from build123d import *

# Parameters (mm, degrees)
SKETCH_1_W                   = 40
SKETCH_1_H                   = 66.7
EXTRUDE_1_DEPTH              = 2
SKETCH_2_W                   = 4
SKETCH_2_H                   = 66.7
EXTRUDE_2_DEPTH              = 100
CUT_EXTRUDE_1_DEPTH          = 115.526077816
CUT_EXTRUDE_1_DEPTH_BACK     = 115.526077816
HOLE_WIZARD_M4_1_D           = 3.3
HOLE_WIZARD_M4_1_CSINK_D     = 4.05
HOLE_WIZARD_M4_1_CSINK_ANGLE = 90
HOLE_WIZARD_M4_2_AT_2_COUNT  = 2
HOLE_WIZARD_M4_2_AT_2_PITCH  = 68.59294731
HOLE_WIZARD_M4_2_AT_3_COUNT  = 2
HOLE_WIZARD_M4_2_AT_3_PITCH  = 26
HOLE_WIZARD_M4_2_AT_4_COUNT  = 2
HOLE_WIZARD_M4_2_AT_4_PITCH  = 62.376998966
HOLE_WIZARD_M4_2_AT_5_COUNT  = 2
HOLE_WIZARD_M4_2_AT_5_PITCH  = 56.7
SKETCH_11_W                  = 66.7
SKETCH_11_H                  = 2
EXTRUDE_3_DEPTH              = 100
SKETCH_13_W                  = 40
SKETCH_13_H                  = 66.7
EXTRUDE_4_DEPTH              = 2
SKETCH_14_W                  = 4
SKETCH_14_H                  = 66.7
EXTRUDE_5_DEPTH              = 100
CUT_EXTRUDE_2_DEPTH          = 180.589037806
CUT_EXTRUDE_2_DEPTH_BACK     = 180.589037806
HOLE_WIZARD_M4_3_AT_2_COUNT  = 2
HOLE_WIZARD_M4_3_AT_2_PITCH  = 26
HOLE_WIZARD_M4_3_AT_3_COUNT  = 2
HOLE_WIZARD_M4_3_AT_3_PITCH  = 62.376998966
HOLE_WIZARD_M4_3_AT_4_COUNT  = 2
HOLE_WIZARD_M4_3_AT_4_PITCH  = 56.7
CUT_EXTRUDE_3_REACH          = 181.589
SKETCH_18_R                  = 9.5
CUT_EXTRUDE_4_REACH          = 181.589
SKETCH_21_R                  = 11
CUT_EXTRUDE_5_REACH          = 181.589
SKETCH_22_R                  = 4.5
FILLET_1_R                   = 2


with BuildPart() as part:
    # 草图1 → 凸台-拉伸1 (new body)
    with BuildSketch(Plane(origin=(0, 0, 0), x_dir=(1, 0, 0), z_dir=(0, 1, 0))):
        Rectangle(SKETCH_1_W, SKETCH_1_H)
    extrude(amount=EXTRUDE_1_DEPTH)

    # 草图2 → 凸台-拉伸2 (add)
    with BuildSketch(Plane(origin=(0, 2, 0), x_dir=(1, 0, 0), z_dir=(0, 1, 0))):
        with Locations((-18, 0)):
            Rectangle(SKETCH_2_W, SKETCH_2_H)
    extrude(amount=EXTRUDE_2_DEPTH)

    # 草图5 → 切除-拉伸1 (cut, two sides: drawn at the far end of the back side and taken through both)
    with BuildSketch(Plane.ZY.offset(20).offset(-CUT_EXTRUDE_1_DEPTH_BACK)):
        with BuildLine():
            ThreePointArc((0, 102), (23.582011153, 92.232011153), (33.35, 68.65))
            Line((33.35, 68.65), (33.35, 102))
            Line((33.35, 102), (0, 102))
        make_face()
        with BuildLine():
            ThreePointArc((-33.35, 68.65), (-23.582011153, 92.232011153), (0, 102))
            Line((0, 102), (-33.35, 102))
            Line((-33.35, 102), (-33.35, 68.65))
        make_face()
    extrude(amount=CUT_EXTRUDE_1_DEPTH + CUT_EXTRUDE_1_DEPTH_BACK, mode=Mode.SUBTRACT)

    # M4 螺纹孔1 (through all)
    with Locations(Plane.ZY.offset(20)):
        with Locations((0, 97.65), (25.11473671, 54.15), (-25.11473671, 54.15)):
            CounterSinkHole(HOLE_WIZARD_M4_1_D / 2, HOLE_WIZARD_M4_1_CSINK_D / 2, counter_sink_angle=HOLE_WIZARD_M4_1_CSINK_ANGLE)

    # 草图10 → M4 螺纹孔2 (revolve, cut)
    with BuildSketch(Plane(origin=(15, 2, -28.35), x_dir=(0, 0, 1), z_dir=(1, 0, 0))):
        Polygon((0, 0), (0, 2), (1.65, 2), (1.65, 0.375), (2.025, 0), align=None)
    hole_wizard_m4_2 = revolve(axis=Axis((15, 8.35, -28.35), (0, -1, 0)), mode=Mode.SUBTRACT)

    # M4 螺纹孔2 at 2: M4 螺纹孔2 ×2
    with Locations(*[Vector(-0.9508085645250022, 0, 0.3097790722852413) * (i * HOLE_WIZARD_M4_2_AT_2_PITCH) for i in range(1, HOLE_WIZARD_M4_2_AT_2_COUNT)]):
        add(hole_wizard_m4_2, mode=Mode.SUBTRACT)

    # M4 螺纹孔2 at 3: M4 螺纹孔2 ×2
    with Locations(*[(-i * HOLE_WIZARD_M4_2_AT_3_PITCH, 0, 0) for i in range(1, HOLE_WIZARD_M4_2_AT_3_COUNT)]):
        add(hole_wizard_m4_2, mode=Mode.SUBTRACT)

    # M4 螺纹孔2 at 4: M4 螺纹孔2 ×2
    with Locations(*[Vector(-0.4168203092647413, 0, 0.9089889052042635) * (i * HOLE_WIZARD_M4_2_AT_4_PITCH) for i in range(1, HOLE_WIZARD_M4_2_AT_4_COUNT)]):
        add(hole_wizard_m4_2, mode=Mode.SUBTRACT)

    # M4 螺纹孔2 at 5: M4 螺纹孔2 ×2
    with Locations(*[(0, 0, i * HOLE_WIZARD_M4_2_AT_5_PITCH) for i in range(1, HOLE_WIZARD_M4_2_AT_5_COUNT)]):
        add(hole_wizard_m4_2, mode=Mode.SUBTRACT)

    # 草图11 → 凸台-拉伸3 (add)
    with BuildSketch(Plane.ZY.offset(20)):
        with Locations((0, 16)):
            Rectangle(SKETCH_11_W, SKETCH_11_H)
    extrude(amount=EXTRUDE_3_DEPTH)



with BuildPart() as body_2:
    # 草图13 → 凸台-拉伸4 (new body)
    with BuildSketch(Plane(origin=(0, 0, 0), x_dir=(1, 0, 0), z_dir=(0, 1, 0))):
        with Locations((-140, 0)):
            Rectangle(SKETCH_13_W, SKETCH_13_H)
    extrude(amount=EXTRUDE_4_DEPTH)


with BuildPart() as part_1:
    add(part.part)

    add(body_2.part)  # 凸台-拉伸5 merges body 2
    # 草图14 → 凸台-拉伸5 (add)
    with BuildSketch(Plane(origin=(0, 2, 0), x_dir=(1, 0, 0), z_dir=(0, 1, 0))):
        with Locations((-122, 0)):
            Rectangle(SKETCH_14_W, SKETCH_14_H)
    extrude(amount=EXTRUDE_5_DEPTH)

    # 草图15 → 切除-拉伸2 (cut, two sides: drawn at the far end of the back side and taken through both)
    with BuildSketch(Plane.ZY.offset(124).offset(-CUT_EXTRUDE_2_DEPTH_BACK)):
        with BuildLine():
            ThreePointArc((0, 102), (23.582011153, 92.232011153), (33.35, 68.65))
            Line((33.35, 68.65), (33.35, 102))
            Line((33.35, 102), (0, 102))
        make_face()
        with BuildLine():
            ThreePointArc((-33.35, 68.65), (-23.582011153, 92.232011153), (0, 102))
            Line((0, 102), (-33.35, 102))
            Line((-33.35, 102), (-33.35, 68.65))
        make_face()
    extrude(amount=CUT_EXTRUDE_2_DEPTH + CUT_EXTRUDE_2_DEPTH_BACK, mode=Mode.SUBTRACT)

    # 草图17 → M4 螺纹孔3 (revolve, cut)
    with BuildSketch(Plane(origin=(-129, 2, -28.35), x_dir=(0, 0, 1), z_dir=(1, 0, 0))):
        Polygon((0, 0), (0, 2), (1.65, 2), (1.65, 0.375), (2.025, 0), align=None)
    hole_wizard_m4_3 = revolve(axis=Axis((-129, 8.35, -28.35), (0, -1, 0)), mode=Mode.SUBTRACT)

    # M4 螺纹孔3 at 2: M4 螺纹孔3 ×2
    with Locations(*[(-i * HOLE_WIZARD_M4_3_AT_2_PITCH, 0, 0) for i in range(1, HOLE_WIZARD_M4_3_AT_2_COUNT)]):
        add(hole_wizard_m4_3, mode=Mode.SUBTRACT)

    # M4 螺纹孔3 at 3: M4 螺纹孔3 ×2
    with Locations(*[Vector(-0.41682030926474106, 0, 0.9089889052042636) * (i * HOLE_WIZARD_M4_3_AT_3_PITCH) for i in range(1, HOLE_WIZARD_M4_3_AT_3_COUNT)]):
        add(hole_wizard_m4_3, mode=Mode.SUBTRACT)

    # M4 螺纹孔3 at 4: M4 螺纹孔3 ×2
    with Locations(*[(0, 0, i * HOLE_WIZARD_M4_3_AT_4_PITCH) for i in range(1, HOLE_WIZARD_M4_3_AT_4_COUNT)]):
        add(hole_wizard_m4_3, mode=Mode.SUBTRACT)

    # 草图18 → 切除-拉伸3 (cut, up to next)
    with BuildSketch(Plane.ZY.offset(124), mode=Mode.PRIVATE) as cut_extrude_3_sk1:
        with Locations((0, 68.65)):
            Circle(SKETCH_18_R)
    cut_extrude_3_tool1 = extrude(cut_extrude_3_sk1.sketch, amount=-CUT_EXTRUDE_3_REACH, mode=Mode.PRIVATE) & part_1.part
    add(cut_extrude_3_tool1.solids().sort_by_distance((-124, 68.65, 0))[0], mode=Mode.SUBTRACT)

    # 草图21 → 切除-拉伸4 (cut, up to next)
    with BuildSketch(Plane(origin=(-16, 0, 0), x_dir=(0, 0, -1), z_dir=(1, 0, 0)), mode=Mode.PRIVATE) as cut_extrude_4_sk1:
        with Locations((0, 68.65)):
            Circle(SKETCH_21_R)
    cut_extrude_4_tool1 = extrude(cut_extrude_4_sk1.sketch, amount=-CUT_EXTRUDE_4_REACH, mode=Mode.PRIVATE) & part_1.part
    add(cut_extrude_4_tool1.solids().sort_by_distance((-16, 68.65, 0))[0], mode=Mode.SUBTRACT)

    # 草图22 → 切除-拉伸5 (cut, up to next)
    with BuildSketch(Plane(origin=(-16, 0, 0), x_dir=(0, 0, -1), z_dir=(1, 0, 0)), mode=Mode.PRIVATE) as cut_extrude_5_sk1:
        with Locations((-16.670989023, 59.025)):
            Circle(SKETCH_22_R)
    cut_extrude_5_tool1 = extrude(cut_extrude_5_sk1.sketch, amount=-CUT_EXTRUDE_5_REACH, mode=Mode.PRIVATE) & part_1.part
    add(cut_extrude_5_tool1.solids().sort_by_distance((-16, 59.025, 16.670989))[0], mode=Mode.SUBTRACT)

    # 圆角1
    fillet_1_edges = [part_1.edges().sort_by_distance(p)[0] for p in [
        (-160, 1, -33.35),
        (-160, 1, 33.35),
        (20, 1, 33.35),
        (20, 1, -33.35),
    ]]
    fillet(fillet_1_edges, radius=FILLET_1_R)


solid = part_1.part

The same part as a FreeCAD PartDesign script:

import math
import FreeCAD as App
import Part
import Sketcher

V = App.Vector
Q = App.Units.Quantity


def edges_at(feature, points):
    """Names of the edges that pass closest to the given points."""
    edges = feature.Shape.Edges
    near = lambda p: min(range(len(edges)), key=lambda i: edges[i].distToShape(Part.Vertex(*p))[0])
    return sorted({f"Edge{near(p) + 1}" for p in points})

doc = App.newDocument("Part")
body = doc.addObject("PartDesign::Body", "Body")

# Sketch on XZ plane
sketch1 = doc.addObject("Sketcher::SketchObject", "Sketch")
body.addObject(sketch1)
sketch1.AttachmentSupport = (doc.XZ_Plane, [""])
sketch1.MapMode = "FlatFace"
sketch1.addGeometry([
    Part.LineSegment(V(-20, -33, 0), V(-20, 33, 0)),
    Part.LineSegment(V(-20, 33, 0), V(20, 33, 0)),
    Part.LineSegment(V(20, 33, 0), V(20, -33, 0)),
    Part.LineSegment(V(20, -33, 0), V(-20, -33, 0)),
], False)
sketch1.addConstraint([
    Sketcher.Constraint("Coincident", 0, 2, 1, 1),
    Sketcher.Constraint("Coincident", 1, 2, 2, 1),
    Sketcher.Constraint("Coincident", 2, 2, 3, 1),
    Sketcher.Constraint("Coincident", 3, 2, 0, 1),
    Sketcher.Constraint("Vertical", 0),
    Sketcher.Constraint("Horizontal", 1),
    Sketcher.Constraint("Vertical", 2),
    Sketcher.Constraint("Horizontal", 3),
    Sketcher.Constraint("Symmetric", 0, 2, 2, 2, -1, 1),
    Sketcher.Constraint("DistanceX", 1, 1, 1, 2, 40.0),
    Sketcher.Constraint("DistanceY", 0, 1, 0, 2, 66.7),
])
pad1 = doc.addObject("PartDesign::Pad", "Pad")
body.addObject(pad1)
pad1.Profile = sketch1
pad1.Length = 2
pad1.Reversed = True

# Sketch on XZ plane
sketch2 = doc.addObject("Sketcher::SketchObject", "Sketch001")
body.addObject(sketch2)
sketch2.AttachmentSupport = (doc.XZ_Plane, [""])
sketch2.MapMode = "FlatFace"
sketch2.AttachmentOffset = App.Placement(V(0, 0, -2), App.Rotation())
sketch2.addGeometry([
    Part.LineSegment(V(-20, -33.4, 0), V(-20, 33.4, 0)),
    Part.LineSegment(V(-20, 33.4, 0), V(-16, 33.4, 0)),
    Part.LineSegment(V(-16, 33.4, 0), V(-16, -33.4, 0)),
    Part.LineSegment(V(-16, -33.4, 0), V(-20, -33.4, 0)),
], False)
sketch2.addConstraint([
    Sketcher.Constraint("Coincident", 0, 2, 1, 1),
    Sketcher.Constraint("Coincident", 1, 2, 2, 1),
    Sketcher.Constraint("Coincident", 2, 2, 3, 1),
    Sketcher.Constraint("Coincident", 3, 2, 0, 1),
    Sketcher.Constraint("Vertical", 0),
    Sketcher.Constraint("Horizontal", 1),
    Sketcher.Constraint("Vertical", 2),
    Sketcher.Constraint("Horizontal", 3),
    Sketcher.Constraint("DistanceX", 1, 1, 1, 2, 4.0),
    Sketcher.Constraint("DistanceY", 0, 1, 0, 2, 66.7),
    Sketcher.Constraint("DistanceX", 0, 2, -1, 1, 20.0),
    Sketcher.Constraint("DistanceY", -1, 1, 0, 2, 33.35),
])
pad2 = doc.addObject("PartDesign::Pad", "Pad001")
body.addObject(pad2)
pad2.Profile = sketch2
pad2.Length = 100
pad2.Reversed = True

# Sketch on YZ plane
sketch3 = doc.addObject("Sketcher::SketchObject", "Sketch002")
body.addObject(sketch3)
sketch3.AttachmentSupport = (doc.YZ_Plane, [""])
sketch3.MapMode = "FlatFace"
sketch3.AttachmentOffset = App.Placement(V(0, 0, -20), App.Rotation())
sketch3.addGeometry([
    Part.ArcOfCircle(Part.Circle(V(69, 0, 0), V(0, 0, 1), 33), math.radians(0), math.radians(90)),  # 0
    Part.LineSegment(V(69, 33, 0), V(102, 33, 0)),  # 1
    Part.LineSegment(V(102, 33, 0), V(102, 0, 0)),  # 2
    Part.ArcOfCircle(Part.Circle(V(69, 0, 0), V(0, 0, 1), 33), math.radians(-90), math.radians(0)),  # 3
    Part.LineSegment(V(102, 0, 0), V(102, -33, 0)),  # 4
    Part.LineSegment(V(102, -33, 0), V(69, -33, 0)),  # 5
], False)
sketch3.addConstraint([
    Sketcher.Constraint("Tangent", 0, 2, 1, 1),
    Sketcher.Constraint("Coincident", 1, 2, 2, 1),
    Sketcher.Constraint("Tangent", 2, 2, 0, 1),
    Sketcher.Constraint("Tangent", 3, 2, 4, 1),
    Sketcher.Constraint("Coincident", 4, 2, 5, 1),
    Sketcher.Constraint("Tangent", 5, 2, 3, 1),
    Sketcher.Constraint("Horizontal", 1),
    Sketcher.Constraint("Vertical", 2),
    Sketcher.Constraint("Vertical", 4),
    Sketcher.Constraint("Horizontal", 5),
    Sketcher.Constraint("Coincident", 3, 3, 0, 3),
    Sketcher.Constraint("Equal", 0, 3),
    Sketcher.Constraint("PointOnObject", 0, 3, -1),
    Sketcher.Constraint("Radius", 0, 33.35),
    Sketcher.Constraint("DistanceX", -1, 1, 1, 2, 102.0),
])
pocket1 = doc.addObject("PartDesign::Pocket", "Pocket")
body.addObject(pocket1)
pocket1.Profile = sketch3
pocket1.Type = "ThroughAll"
pocket1.Midplane = True

# Sketch on YZ plane
sketch4 = doc.addObject("Sketcher::SketchObject", "Sketch003")
body.addObject(sketch4)
sketch4.AttachmentSupport = (doc.YZ_Plane, [""])
sketch4.MapMode = "FlatFace"
sketch4.AttachmentOffset = App.Placement(V(0, 0, -20), App.Rotation())
sketch4.addGeometry([
    Part.Circle(V(97.7, 0, 0), V(0, 0, 1), 1.6),
    Part.Circle(V(54.1, 25.1, 0), V(0, 0, 1), 1.6),
    Part.Circle(V(54.1, -25.1, 0), V(0, 0, 1), 1.6),
], False)
sketch4.addConstraint([
    Sketcher.Constraint("Equal", 0, 1),
    Sketcher.Constraint("Equal", 1, 2),
    Sketcher.Constraint("Symmetric", 1, 3, 2, 3, -1),
    Sketcher.Constraint("PointOnObject", 0, 3, -1),
    Sketcher.Constraint("Diameter", 0, 3.3),
    Sketcher.Constraint("DistanceX", 1, 3, 0, 3, 43.5),
    Sketcher.Constraint("DistanceX", -1, 1, 0, 3, 97.65),
    Sketcher.Constraint("DistanceY", -1, 1, 1, 3, 25.114737),
])
doc.recompute()
hole = doc.addObject("PartDesign::Hole", "Hole")
body.addObject(hole)
hole.Profile = sketch4
hole.ThreadType = "None"
hole.Diameter = 3.3
hole.DepthType = "ThroughAll"
hole.HoleCutType = "Countersink"
hole.HoleCutDiameter = 4.05
hole.HoleCutCountersinkAngle = 90
hole.Reversed = True

# Sketch on YZ plane
sketch5 = doc.addObject("Sketcher::SketchObject", "Sketch004")
body.addObject(sketch5)
sketch5.AttachmentSupport = (doc.YZ_Plane, [""])
sketch5.MapMode = "FlatFace"
sketch5.AttachmentOffset = App.Placement(V(0, 0, 15), App.Rotation())
sketch5.addGeometry([
    Part.LineSegment(V(0, -28.4, 0), V(2, -28.4, 0)),  # 0
    Part.LineSegment(V(2, -28.4, 0), V(2, -26.3, 0)),  # 1
    Part.LineSegment(V(2, -26.3, 0), V(1.6, -26.7, 0)),  # 2
    Part.LineSegment(V(1.6, -26.7, 0), V(0, -26.7, 0)),  # 3
    Part.LineSegment(V(0, -26.7, 0), V(0, -28.4, 0)),  # 4
], False)
sketch5.addGeometry(Part.LineSegment(V(2, -28.4, 0), V(0, -28.4, 0)), True)  # axis
sketch5.addConstraint([
    Sketcher.Constraint("Coincident", 0, 2, 1, 1),
    Sketcher.Constraint("Coincident", 1, 2, 2, 1),
    Sketcher.Constraint("Coincident", 2, 2, 3, 1),
    Sketcher.Constraint("Coincident", 3, 2, 4, 1),
    Sketcher.Constraint("Coincident", 4, 2, 0, 1),
    Sketcher.Constraint("Horizontal", 0),
    Sketcher.Constraint("Vertical", 1),
    Sketcher.Constraint("Horizontal", 3),
    Sketcher.Constraint("Vertical", 4),
    Sketcher.Constraint("Horizontal", 5),
    Sketcher.Constraint("Coincident", 5, 1, 0, 2),
    Sketcher.Constraint("PointOnObject", 3, 2, -2),
    Sketcher.Constraint("PointOnObject", 5, 2, -2),
    Sketcher.Constraint("DistanceX", 0, 1, 0, 2, 2.0),
    Sketcher.Constraint("Angle", 2, Q("-135 deg")),
    Sketcher.Constraint("DistanceY", 4, 2, 4, 1, 1.65),
    Sketcher.Constraint("DistanceY", 2, 2, -1, 1, 26.7),
    Sketcher.Constraint("DistanceX", 3, 2, 3, 1, 1.625),
])
groove = doc.addObject("PartDesign::Groove", "Groove")
body.addObject(groove)
groove.Profile = sketch5
groove.ReferenceAxis = (sketch5, ["Axis0"])
groove.Angle = 360
doc.recompute()

datumline = doc.addObject("PartDesign::Line", "DatumLine")
body.addObject(datumline)
datumline.Placement = App.Placement(V(0, 0, 0), App.Rotation(V(0, 0, 1), V(-0.950808565, 0, 0.309779072)))
linearpattern = doc.addObject("PartDesign::LinearPattern", "LinearPattern")
body.addObject(linearpattern)
linearpattern.Originals = [groove]
linearpattern.Direction = (datumline, [""])
linearpattern.Mode = "offset"
linearpattern.Offset = 68.592947
linearpattern.Occurrences = 2
body.Tip = linearpattern
doc.recompute()

linearpattern2 = doc.addObject("PartDesign::LinearPattern", "LinearPattern001")
body.addObject(linearpattern2)
linearpattern2.Originals = [groove]
linearpattern2.Direction = (doc.X_Axis, [""])
linearpattern2.Mode = "offset"
linearpattern2.Offset = 26
linearpattern2.Occurrences = 2
linearpattern2.Reversed = True
body.Tip = linearpattern2
doc.recompute()

datumline2 = doc.addObject("PartDesign::Line", "DatumLine001")
body.addObject(datumline2)
datumline2.Placement = App.Placement(V(0, 0, 0), App.Rotation(V(0, 0, 1), V(-0.416820309, 0, 0.908988905)))
linearpattern3 = doc.addObject("PartDesign::LinearPattern", "LinearPattern002")
body.addObject(linearpattern3)
linearpattern3.Originals = [groove]
linearpattern3.Direction = (datumline2, [""])
linearpattern3.Mode = "offset"
linearpattern3.Offset = 62.376999
linearpattern3.Occurrences = 2
body.Tip = linearpattern3
doc.recompute()

linearpattern4 = doc.addObject("PartDesign::LinearPattern", "LinearPattern003")
body.addObject(linearpattern4)
linearpattern4.Originals = [groove]
linearpattern4.Direction = (doc.Z_Axis, [""])
linearpattern4.Mode = "offset"
linearpattern4.Offset = 56.7
linearpattern4.Occurrences = 2
body.Tip = linearpattern4

# Sketch on YZ plane
sketch6 = doc.addObject("Sketcher::SketchObject", "Sketch005")
body.addObject(sketch6)
sketch6.AttachmentSupport = (doc.YZ_Plane, [""])
sketch6.MapMode = "FlatFace"
sketch6.AttachmentOffset = App.Placement(V(0, 0, -20), App.Rotation())
sketch6.addGeometry([
    Part.LineSegment(V(17, -33.4, 0), V(15, -33.4, 0)),
    Part.LineSegment(V(15, -33.4, 0), V(15, 33.4, 0)),
    Part.LineSegment(V(15, 33.4, 0), V(17, 33.4, 0)),
    Part.LineSegment(V(17, 33.4, 0), V(17, -33.4, 0)),
], False)
sketch6.addConstraint([
    Sketcher.Constraint("Coincident", 0, 2, 1, 1),
    Sketcher.Constraint("Coincident", 1, 2, 2, 1),
    Sketcher.Constraint("Coincident", 2, 2, 3, 1),
    Sketcher.Constraint("Coincident", 3, 2, 0, 1),
    Sketcher.Constraint("Horizontal", 0),
    Sketcher.Constraint("Vertical", 1),
    Sketcher.Constraint("Horizontal", 2),
    Sketcher.Constraint("Vertical", 3),
    Sketcher.Constraint("DistanceX", 0, 2, 0, 1, 2.0),
    Sketcher.Constraint("DistanceY", 1, 1, 1, 2, 66.7),
    Sketcher.Constraint("DistanceX", -1, 1, 0, 2, 15.0),
    Sketcher.Constraint("DistanceY", 0, 2, -1, 1, 33.35),
])
pad3 = doc.addObject("PartDesign::Pad", "Pad002")
body.addObject(pad3)
pad3.Profile = sketch6
pad3.Length = 100
pad3.Reversed = True
body2 = doc.addObject("PartDesign::Body", "Body001")

# Sketch on XZ plane
sketch7 = doc.addObject("Sketcher::SketchObject", "Sketch006")
body2.addObject(sketch7)
sketch7.AttachmentSupport = (doc.getObject("XZ_Plane001"), [""])
sketch7.MapMode = "FlatFace"
sketch7.addGeometry([
    Part.LineSegment(V(-160, -33, 0), V(-160, 33, 0)),
    Part.LineSegment(V(-160, 33, 0), V(-120, 33, 0)),
    Part.LineSegment(V(-120, 33, 0), V(-120, -33, 0)),
    Part.LineSegment(V(-120, -33, 0), V(-160, -33, 0)),
], False)
sketch7.addConstraint([
    Sketcher.Constraint("Coincident", 0, 2, 1, 1),
    Sketcher.Constraint("Coincident", 1, 2, 2, 1),
    Sketcher.Constraint("Coincident", 2, 2, 3, 1),
    Sketcher.Constraint("Coincident", 3, 2, 0, 1),
    Sketcher.Constraint("Vertical", 0),
    Sketcher.Constraint("Horizontal", 1),
    Sketcher.Constraint("Vertical", 2),
    Sketcher.Constraint("Horizontal", 3),
    Sketcher.Constraint("DistanceX", 1, 1, 1, 2, 40.0),
    Sketcher.Constraint("DistanceY", 0, 1, 0, 2, 66.7),
    Sketcher.Constraint("DistanceX", 0, 2, -1, 1, 160.0),
    Sketcher.Constraint("DistanceY", -1, 1, 0, 2, 33.35),
])
pad4 = doc.addObject("PartDesign::Pad", "Pad003")
body2.addObject(pad4)
pad4.Profile = sketch7
pad4.Length = 2
pad4.Reversed = True
body.AllowCompound = True
doc.recompute()

boolean = doc.addObject("PartDesign::Boolean", "Boolean")
body.addObject(boolean)
boolean.Type = "Fuse"
boolean.addObjects([body2])

# Sketch on XZ plane
sketch8 = doc.addObject("Sketcher::SketchObject", "Sketch007")
body.addObject(sketch8)
sketch8.AttachmentSupport = (doc.XZ_Plane, [""])
sketch8.MapMode = "FlatFace"
sketch8.AttachmentOffset = App.Placement(V(0, 0, -2), App.Rotation())
sketch8.addGeometry([
    Part.LineSegment(V(-124, -33.4, 0), V(-124, 33.4, 0)),
    Part.LineSegment(V(-124, 33.4, 0), V(-120, 33.4, 0)),
    Part.LineSegment(V(-120, 33.4, 0), V(-120, -33.4, 0)),
    Part.LineSegment(V(-120, -33.4, 0), V(-124, -33.4, 0)),
], False)
sketch8.addConstraint([
    Sketcher.Constraint("Coincident", 0, 2, 1, 1),
    Sketcher.Constraint("Coincident", 1, 2, 2, 1),
    Sketcher.Constraint("Coincident", 2, 2, 3, 1),
    Sketcher.Constraint("Coincident", 3, 2, 0, 1),
    Sketcher.Constraint("Vertical", 0),
    Sketcher.Constraint("Horizontal", 1),
    Sketcher.Constraint("Vertical", 2),
    Sketcher.Constraint("Horizontal", 3),
    Sketcher.Constraint("DistanceX", 1, 1, 1, 2, 4.0),
    Sketcher.Constraint("DistanceY", 0, 1, 0, 2, 66.7),
    Sketcher.Constraint("DistanceX", 0, 2, -1, 1, 124.0),
    Sketcher.Constraint("DistanceY", -1, 1, 0, 2, 33.35),
])
pad5 = doc.addObject("PartDesign::Pad", "Pad004")
body.addObject(pad5)
pad5.Profile = sketch8
pad5.Length = 100
pad5.Reversed = True

# Sketch on YZ plane
sketch9 = doc.addObject("Sketcher::SketchObject", "Sketch008")
body.addObject(sketch9)
sketch9.AttachmentSupport = (doc.YZ_Plane, [""])
sketch9.MapMode = "FlatFace"
sketch9.AttachmentOffset = App.Placement(V(0, 0, -124), App.Rotation())
sketch9.addGeometry([
    Part.ArcOfCircle(Part.Circle(V(69, 0, 0), V(0, 0, 1), 33), math.radians(0), math.radians(90)),  # 0
    Part.LineSegment(V(69, 33, 0), V(102, 33, 0)),  # 1
    Part.LineSegment(V(102, 33, 0), V(102, 0, 0)),  # 2
    Part.ArcOfCircle(Part.Circle(V(69, 0, 0), V(0, 0, 1), 33), math.radians(-90), math.radians(0)),  # 3
    Part.LineSegment(V(102, 0, 0), V(102, -33, 0)),  # 4
    Part.LineSegment(V(102, -33, 0), V(69, -33, 0)),  # 5
], False)
sketch9.addConstraint([
    Sketcher.Constraint("Tangent", 0, 2, 1, 1),
    Sketcher.Constraint("Coincident", 1, 2, 2, 1),
    Sketcher.Constraint("Tangent", 2, 2, 0, 1),
    Sketcher.Constraint("Tangent", 3, 2, 4, 1),
    Sketcher.Constraint("Coincident", 4, 2, 5, 1),
    Sketcher.Constraint("Tangent", 5, 2, 3, 1),
    Sketcher.Constraint("Horizontal", 1),
    Sketcher.Constraint("Vertical", 2),
    Sketcher.Constraint("Vertical", 4),
    Sketcher.Constraint("Horizontal", 5),
    Sketcher.Constraint("Coincident", 3, 3, 0, 3),
    Sketcher.Constraint("Equal", 0, 3),
    Sketcher.Constraint("PointOnObject", 0, 3, -1),
    Sketcher.Constraint("Radius", 0, 33.35),
    Sketcher.Constraint("DistanceX", -1, 1, 1, 2, 102.0),
])
pocket2 = doc.addObject("PartDesign::Pocket", "Pocket001")
body.addObject(pocket2)
pocket2.Profile = sketch9
pocket2.Type = "ThroughAll"
pocket2.Midplane = True

# Sketch on YZ plane
sketch10 = doc.addObject("Sketcher::SketchObject", "Sketch009")
body.addObject(sketch10)
sketch10.AttachmentSupport = (doc.YZ_Plane, [""])
sketch10.MapMode = "FlatFace"
sketch10.AttachmentOffset = App.Placement(V(0, 0, -129), App.Rotation())
sketch10.addGeometry([
    Part.LineSegment(V(0, -28.4, 0), V(2, -28.4, 0)),  # 0
    Part.LineSegment(V(2, -28.4, 0), V(2, -26.3, 0)),  # 1
    Part.LineSegment(V(2, -26.3, 0), V(1.6, -26.7, 0)),  # 2
    Part.LineSegment(V(1.6, -26.7, 0), V(0, -26.7, 0)),  # 3
    Part.LineSegment(V(0, -26.7, 0), V(0, -28.4, 0)),  # 4
], False)
sketch10.addGeometry(Part.LineSegment(V(2, -28.4, 0), V(0, -28.4, 0)), True)  # axis
sketch10.addConstraint([
    Sketcher.Constraint("Coincident", 0, 2, 1, 1),
    Sketcher.Constraint("Coincident", 1, 2, 2, 1),
    Sketcher.Constraint("Coincident", 2, 2, 3, 1),
    Sketcher.Constraint("Coincident", 3, 2, 4, 1),
    Sketcher.Constraint("Coincident", 4, 2, 0, 1),
    Sketcher.Constraint("Horizontal", 0),
    Sketcher.Constraint("Vertical", 1),
    Sketcher.Constraint("Horizontal", 3),
    Sketcher.Constraint("Vertical", 4),
    Sketcher.Constraint("Horizontal", 5),
    Sketcher.Constraint("Coincident", 5, 1, 0, 2),
    Sketcher.Constraint("PointOnObject", 3, 2, -2),
    Sketcher.Constraint("PointOnObject", 5, 2, -2),
    Sketcher.Constraint("DistanceX", 0, 1, 0, 2, 2.0),
    Sketcher.Constraint("Angle", 2, Q("-135 deg")),
    Sketcher.Constraint("DistanceY", 4, 2, 4, 1, 1.65),
    Sketcher.Constraint("DistanceY", 2, 2, -1, 1, 26.7),
    Sketcher.Constraint("DistanceX", 3, 2, 3, 1, 1.625),
])
groove2 = doc.addObject("PartDesign::Groove", "Groove001")
body.addObject(groove2)
groove2.Profile = sketch10
groove2.ReferenceAxis = (sketch10, ["Axis0"])
groove2.Angle = 360
doc.recompute()

linearpattern5 = doc.addObject("PartDesign::LinearPattern", "LinearPattern004")
body.addObject(linearpattern5)
linearpattern5.Originals = [groove2]
linearpattern5.Direction = (doc.X_Axis, [""])
linearpattern5.Mode = "offset"
linearpattern5.Offset = 26
linearpattern5.Occurrences = 2
linearpattern5.Reversed = True
body.Tip = linearpattern5
doc.recompute()

datumline3 = doc.addObject("PartDesign::Line", "DatumLine002")
body.addObject(datumline3)
datumline3.Placement = App.Placement(V(0, 0, 0), App.Rotation(V(0, 0, 1), V(-0.416820309, 0, 0.908988905)))
linearpattern6 = doc.addObject("PartDesign::LinearPattern", "LinearPattern005")
body.addObject(linearpattern6)
linearpattern6.Originals = [groove2]
linearpattern6.Direction = (datumline3, [""])
linearpattern6.Mode = "offset"
linearpattern6.Offset = 62.376999
linearpattern6.Occurrences = 2
body.Tip = linearpattern6
doc.recompute()

linearpattern7 = doc.addObject("PartDesign::LinearPattern", "LinearPattern006")
body.addObject(linearpattern7)
linearpattern7.Originals = [groove2]
linearpattern7.Direction = (doc.Z_Axis, [""])
linearpattern7.Mode = "offset"
linearpattern7.Offset = 56.7
linearpattern7.Occurrences = 2
body.Tip = linearpattern7

# Sketch on YZ plane
sketch11 = doc.addObject("Sketcher::SketchObject", "Sketch010")
body.addObject(sketch11)
sketch11.AttachmentSupport = (doc.YZ_Plane, [""])
sketch11.MapMode = "FlatFace"
sketch11.AttachmentOffset = App.Placement(V(0, 0, -124), App.Rotation())
sketch11.addGeometry(Part.Circle(V(69, 0, 0), V(0, 0, 1), 10), False)
sketch11.addConstraint([
    Sketcher.Constraint("PointOnObject", 0, 3, -1),
    Sketcher.Constraint("Diameter", 0, 19.0),
    Sketcher.Constraint("DistanceX", -1, 1, 0, 3, 68.65),
])
pocket3 = doc.addObject("PartDesign::Pocket", "Pocket002")
body.addObject(pocket3)
pocket3.Profile = sketch11
pocket3.Type = "UpToFirst"
pocket3.Reversed = True

# Sketch on YZ plane
sketch12 = doc.addObject("Sketcher::SketchObject", "Sketch011")
body.addObject(sketch12)
sketch12.AttachmentSupport = (doc.YZ_Plane, [""])
sketch12.MapMode = "FlatFace"
sketch12.AttachmentOffset = App.Placement(V(0, 0, -16), App.Rotation())
sketch12.addGeometry(Part.Circle(V(69, 0, 0), V(0, 0, 1), 11), False)
sketch12.addConstraint([
    Sketcher.Constraint("PointOnObject", 0, 3, -1),
    Sketcher.Constraint("Diameter", 0, 22.0),
    Sketcher.Constraint("DistanceX", -1, 1, 0, 3, 68.65),
])
pocket4 = doc.addObject("PartDesign::Pocket", "Pocket003")
body.addObject(pocket4)
pocket4.Profile = sketch12
pocket4.Type = "UpToFirst"

# Sketch on YZ plane
sketch13 = doc.addObject("Sketcher::SketchObject", "Sketch012")
body.addObject(sketch13)
sketch13.AttachmentSupport = (doc.YZ_Plane, [""])
sketch13.MapMode = "FlatFace"
sketch13.AttachmentOffset = App.Placement(V(0, 0, -16), App.Rotation())
sketch13.addGeometry(Part.Circle(V(59, 16.7, 0), V(0, 0, 1), 4.5), False)
sketch13.addConstraint([
    Sketcher.Constraint("Diameter", 0, 9.0),
    Sketcher.Constraint("DistanceX", -1, 1, 0, 3, 59.025),
    Sketcher.Constraint("DistanceY", -1, 1, 0, 3, 16.670989),
])
pocket5 = doc.addObject("PartDesign::Pocket", "Pocket004")
body.addObject(pocket5)
pocket5.Profile = sketch13
pocket5.Type = "UpToFirst"
doc.recompute()

fillet = doc.addObject("PartDesign::Fillet", "Fillet")
body.addObject(fillet)
fillet.Base = (pocket5, edges_at(pocket5, [
    (-160, 1, -33.35),
    (-160, 1, 33.35),
    (20, 1, 33.35),
    (20, 1, -33.35),
]))
fillet.Radius = 2

doc.recompute()
